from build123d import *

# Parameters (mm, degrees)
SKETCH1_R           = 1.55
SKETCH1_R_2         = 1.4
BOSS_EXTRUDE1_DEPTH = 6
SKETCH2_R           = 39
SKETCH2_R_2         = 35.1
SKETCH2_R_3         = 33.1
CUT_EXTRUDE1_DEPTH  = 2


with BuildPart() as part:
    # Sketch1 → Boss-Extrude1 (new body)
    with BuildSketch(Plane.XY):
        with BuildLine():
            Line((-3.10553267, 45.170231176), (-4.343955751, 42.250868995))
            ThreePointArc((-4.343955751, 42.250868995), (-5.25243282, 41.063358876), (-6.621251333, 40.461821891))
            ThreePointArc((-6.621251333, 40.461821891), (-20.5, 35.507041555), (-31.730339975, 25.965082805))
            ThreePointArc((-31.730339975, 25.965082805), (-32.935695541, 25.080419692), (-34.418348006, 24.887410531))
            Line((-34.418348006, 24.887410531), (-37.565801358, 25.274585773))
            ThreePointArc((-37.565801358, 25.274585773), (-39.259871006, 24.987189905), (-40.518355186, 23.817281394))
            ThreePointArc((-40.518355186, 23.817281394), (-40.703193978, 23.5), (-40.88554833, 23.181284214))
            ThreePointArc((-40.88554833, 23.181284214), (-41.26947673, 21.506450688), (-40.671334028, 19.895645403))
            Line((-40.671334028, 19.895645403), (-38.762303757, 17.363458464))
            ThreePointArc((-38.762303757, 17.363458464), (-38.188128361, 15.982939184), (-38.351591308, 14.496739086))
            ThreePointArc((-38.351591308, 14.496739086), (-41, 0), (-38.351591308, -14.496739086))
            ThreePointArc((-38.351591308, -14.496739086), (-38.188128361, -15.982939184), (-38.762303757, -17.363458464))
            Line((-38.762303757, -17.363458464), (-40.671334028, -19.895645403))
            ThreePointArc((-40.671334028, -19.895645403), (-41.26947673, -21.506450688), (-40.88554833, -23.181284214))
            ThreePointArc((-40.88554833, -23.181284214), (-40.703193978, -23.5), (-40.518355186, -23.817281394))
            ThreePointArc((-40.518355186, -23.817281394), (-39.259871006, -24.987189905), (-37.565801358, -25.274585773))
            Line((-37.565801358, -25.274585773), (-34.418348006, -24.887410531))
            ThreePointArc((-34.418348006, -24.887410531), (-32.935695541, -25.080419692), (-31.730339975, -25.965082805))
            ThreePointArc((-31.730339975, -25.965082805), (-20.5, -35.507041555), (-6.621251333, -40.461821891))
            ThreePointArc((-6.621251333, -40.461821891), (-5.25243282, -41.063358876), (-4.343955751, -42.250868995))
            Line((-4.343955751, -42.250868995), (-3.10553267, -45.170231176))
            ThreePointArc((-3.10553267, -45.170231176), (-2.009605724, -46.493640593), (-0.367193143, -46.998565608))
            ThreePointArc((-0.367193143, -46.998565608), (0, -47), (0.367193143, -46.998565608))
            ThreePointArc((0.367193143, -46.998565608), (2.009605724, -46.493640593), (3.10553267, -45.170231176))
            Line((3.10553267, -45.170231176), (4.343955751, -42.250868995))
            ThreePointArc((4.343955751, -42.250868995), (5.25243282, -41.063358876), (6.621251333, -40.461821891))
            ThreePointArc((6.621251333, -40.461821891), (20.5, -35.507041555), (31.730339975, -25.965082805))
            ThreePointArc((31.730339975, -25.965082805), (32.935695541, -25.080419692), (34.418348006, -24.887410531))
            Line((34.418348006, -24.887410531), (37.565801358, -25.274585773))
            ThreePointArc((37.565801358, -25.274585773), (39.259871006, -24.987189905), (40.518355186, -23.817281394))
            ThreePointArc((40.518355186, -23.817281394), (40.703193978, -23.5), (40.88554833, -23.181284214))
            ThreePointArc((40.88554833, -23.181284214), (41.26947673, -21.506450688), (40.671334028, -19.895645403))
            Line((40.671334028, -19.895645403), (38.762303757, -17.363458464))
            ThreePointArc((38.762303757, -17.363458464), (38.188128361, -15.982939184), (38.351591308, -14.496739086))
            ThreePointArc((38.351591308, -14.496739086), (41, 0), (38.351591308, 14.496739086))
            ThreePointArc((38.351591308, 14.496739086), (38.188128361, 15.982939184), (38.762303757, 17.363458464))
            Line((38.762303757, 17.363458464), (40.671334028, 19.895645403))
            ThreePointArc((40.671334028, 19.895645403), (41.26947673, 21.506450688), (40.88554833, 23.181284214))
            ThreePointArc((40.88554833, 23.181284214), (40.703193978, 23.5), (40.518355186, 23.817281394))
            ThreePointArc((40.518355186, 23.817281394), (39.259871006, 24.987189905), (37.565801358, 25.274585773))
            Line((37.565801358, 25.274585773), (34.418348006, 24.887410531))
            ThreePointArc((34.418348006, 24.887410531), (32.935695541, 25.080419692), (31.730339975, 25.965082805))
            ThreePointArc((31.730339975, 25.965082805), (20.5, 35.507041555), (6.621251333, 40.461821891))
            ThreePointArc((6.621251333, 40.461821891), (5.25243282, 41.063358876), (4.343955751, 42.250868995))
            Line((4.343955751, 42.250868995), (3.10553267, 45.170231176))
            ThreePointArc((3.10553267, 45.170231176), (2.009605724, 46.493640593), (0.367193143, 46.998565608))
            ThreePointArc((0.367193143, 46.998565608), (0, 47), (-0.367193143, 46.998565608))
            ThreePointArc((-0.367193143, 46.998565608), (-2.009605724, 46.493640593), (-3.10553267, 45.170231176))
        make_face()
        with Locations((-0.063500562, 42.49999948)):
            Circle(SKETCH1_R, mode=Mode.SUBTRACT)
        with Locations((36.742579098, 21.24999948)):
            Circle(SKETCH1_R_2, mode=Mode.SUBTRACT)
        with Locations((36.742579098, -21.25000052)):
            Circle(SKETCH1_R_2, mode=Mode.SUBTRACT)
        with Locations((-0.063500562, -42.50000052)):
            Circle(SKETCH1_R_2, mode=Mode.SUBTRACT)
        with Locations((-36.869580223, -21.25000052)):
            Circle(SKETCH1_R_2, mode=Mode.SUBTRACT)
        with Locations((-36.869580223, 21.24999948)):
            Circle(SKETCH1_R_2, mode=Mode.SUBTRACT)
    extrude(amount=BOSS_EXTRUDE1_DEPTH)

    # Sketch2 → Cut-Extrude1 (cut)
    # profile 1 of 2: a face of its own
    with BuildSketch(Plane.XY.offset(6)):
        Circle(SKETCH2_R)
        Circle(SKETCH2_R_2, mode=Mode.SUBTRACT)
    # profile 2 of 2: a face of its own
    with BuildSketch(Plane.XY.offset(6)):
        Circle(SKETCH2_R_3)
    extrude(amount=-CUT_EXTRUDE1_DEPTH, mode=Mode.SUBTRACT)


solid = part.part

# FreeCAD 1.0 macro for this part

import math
import FreeCAD as App
import Part
import Sketcher

doc = App.newDocument("Part")
body = doc.addObject("PartDesign::Body", "Body")

# Sketch on XY plane
sketch1 = doc.addObject("Sketcher::SketchObject", "Sketch")
body.addObject(sketch1)
sketch1.AttachmentSupport = (doc.XY_Plane, [""])
sketch1.MapMode = "FlatFace"
sketch1.addGeometry([
    Part.LineSegment(App.Vector(-3.105533, 45.170231, 0), App.Vector(-4.343956, 42.250869, 0)),  # 0
    Part.ArcOfCircle(Part.Circle(App.Vector(-7.105733, 43.422443, 0), App.Vector(0, 0, 1), 3), math.radians(-80.70638), math.radians(-22.98715)),  # 1
    Part.ArcOfCircle(Part.Circle(App.Vector(0, 0, 0), App.Vector(0, 0, 1), 41), math.radians(99.29362), math.radians(140.70638)),  # 2
    Part.ArcOfCircle(Part.Circle(App.Vector(-34.052072, 27.864967, 0), App.Vector(0, 0, 1), 3), math.radians(-97.01285), math.radians(-39.29362)),  # 3
    Part.LineSegment(App.Vector(-34.418348, 24.887411, 0), App.Vector(-37.565801, 25.274586, 0)),  # 4
    Part.ArcOfCircle(Part.Circle(App.Vector(-37.932077, 22.297029, 0), App.Vector(0, 0, 1), 3), math.radians(82.98715), math.radians(149.552365)),  # 5
    Part.ArcOfCircle(Part.Circle(App.Vector(0.000002, -0.000001, 0), App.Vector(0, 0, 1), 47.000002), math.radians(149.552365), math.radians(150.447635)),  # 6
    Part.ArcOfCircle(Part.Circle(App.Vector(-38.275832, 21.701628, 0), App.Vector(0, 0, 1), 3), math.radians(150.447635), math.radians(217.01285)),  # 7
    Part.LineSegment(App.Vector(-40.671334, 19.895645, 0), App.Vector(-38.762304, 17.363458, 0)),  # 8
    Part.ArcOfCircle(Part.Circle(App.Vector(-41.157805, 15.557476, 0), App.Vector(0, 0, 1), 3), math.radians(-20.70638), math.radians(37.01285)),  # 9
    Part.ArcOfCircle(Part.Circle(App.Vector(0, 0, 0), App.Vector(0, 0, 1), 41), math.radians(159.29362), math.radians(200.70638)),  # 10
    Part.ArcOfCircle(Part.Circle(App.Vector(-41.157805, -15.557476, 0), App.Vector(0, 0, 1), 3), math.radians(-37.01285), math.radians(20.70638)),  # 11
    Part.LineSegment(App.Vector(-38.762304, -17.363458, 0), App.Vector(-40.671334, -19.895645, 0)),  # 12
    Part.ArcOfCircle(Part.Circle(App.Vector(-38.275832, -21.701628, 0), App.Vector(0, 0, 1), 3), math.radians(142.98715), math.radians(209.552365)),  # 13
    Part.ArcOfCircle(Part.Circle(App.Vector(0.000002, 0.000001, 0), App.Vector(0, 0, 1), 47.000002), math.radians(-150.447635), math.radians(-149.552365)),  # 14
    Part.ArcOfCircle(Part.Circle(App.Vector(-37.932077, -22.297029, 0), App.Vector(0, 0, 1), 3), math.radians(-149.552365), math.radians(-82.98715)),  # 15
    Part.LineSegment(App.Vector(-37.565801, -25.274586, 0), App.Vector(-34.418348, -24.887411, 0)),  # 16
    Part.ArcOfCircle(Part.Circle(App.Vector(-34.052072, -27.864967, 0), App.Vector(0, 0, 1), 3), math.radians(39.29362), math.radians(97.01285)),  # 17
    Part.ArcOfCircle(Part.Circle(App.Vector(0, 0, 0), App.Vector(0, 0, 1), 41), math.radians(-140.70638), math.radians(-99.29362)),  # 18
    Part.ArcOfCircle(Part.Circle(App.Vector(-7.105733, -43.422443, 0), App.Vector(0, 0, 1), 3), math.radians(22.98715), math.radians(80.70638)),  # 19
    Part.LineSegment(App.Vector(-4.343956, -42.250869, 0), App.Vector(-3.105533, -45.170231, 0)),  # 20
    Part.ArcOfCircle(Part.Circle(App.Vector(-0.343755, -43.998657, 0), App.Vector(0, 0, 1), 3), math.radians(-157.01285), math.radians(-90.447635)),  # 21
    Part.ArcOfCircle(Part.Circle(App.Vector(0, 0.000005, 0), App.Vector(0, 0, 1), 47.000005), math.radians(-90.447635), math.radians(-89.552365)),  # 22
    Part.ArcOfCircle(Part.Circle(App.Vector(0.343755, -43.998657, 0), App.Vector(0, 0, 1), 3), math.radians(-89.552365), math.radians(-22.98715)),  # 23
    Part.LineSegment(App.Vector(3.105533, -45.170231, 0), App.Vector(4.343956, -42.250869, 0)),  # 24
    Part.ArcOfCircle(Part.Circle(App.Vector(7.105733, -43.422443, 0), App.Vector(0, 0, 1), 3), math.radians(99.29362), math.radians(157.01285)),  # 25
    Part.ArcOfCircle(Part.Circle(App.Vector(0, 0, 0), App.Vector(0, 0, 1), 41), math.radians(-80.70638), math.radians(-39.29362)),  # 26
    Part.ArcOfCircle(Part.Circle(App.Vector(34.052072, -27.864967, 0), App.Vector(0, 0, 1), 3), math.radians(82.98715), math.radians(140.70638)),  # 27
    Part.LineSegment(App.Vector(34.418348, -24.887411, 0), App.Vector(37.565801, -25.274586, 0)),  # 28
    Part.ArcOfCircle(Part.Circle(App.Vector(37.932077, -22.297029, 0), App.Vector(0, 0, 1), 3), math.radians(-97.01285), math.radians(-30.447635)),  # 29
    Part.ArcOfCircle(Part.Circle(App.Vector(-0.000002, 0.000001, 0), App.Vector(0, 0, 1), 47.000002), math.radians(-30.447635), math.radians(-29.552365)),  # 30
    Part.ArcOfCircle(Part.Circle(App.Vector(38.275832, -21.701628, 0), App.Vector(0, 0, 1), 3), math.radians(-29.552365), math.radians(37.01285)),  # 31
    Part.LineSegment(App.Vector(40.671334, -19.895645, 0), App.Vector(38.762304, -17.363458, 0)),  # 32
    Part.ArcOfCircle(Part.Circle(App.Vector(41.157805, -15.557476, 0), App.Vector(0, 0, 1), 3), math.radians(159.29362), math.radians(217.01285)),  # 33
    Part.ArcOfCircle(Part.Circle(App.Vector(0, 0, 0), App.Vector(0, 0, 1), 41), math.radians(-20.70638), math.radians(20.70638)),  # 34
    Part.ArcOfCircle(Part.Circle(App.Vector(41.157805, 15.557476, 0), App.Vector(0, 0, 1), 3), math.radians(142.98715), math.radians(200.70638)),  # 35
    Part.LineSegment(App.Vector(38.762304, 17.363458, 0), App.Vector(40.671334, 19.895645, 0)),  # 36
    Part.ArcOfCircle(Part.Circle(App.Vector(38.275832, 21.701628, 0), App.Vector(0, 0, 1), 3), math.radians(-37.01285), math.radians(29.552365)),  # 37
    Part.ArcOfCircle(Part.Circle(App.Vector(-0.000002, -0.000001, 0), App.Vector(0, 0, 1), 47.000002), math.radians(29.552365), math.radians(30.447635)),  # 38
    Part.ArcOfCircle(Part.Circle(App.Vector(37.932077, 22.297029, 0), App.Vector(0, 0, 1), 3), math.radians(30.447635), math.radians(97.01285)),  # 39
    Part.LineSegment(App.Vector(37.565801, 25.274586, 0), App.Vector(34.418348, 24.887411, 0)),  # 40
    Part.ArcOfCircle(Part.Circle(App.Vector(34.052072, 27.864967, 0), App.Vector(0, 0, 1), 3), math.radians(-140.70638), math.radians(-82.98715)),  # 41
    Part.ArcOfCircle(Part.Circle(App.Vector(0, 0, 0), App.Vector(0, 0, 1), 41), math.radians(39.29362), math.radians(80.70638)),  # 42
    Part.ArcOfCircle(Part.Circle(App.Vector(7.105733, 43.422443, 0), App.Vector(0, 0, 1), 3), math.radians(-157.01285), math.radians(-99.29362)),  # 43
    Part.LineSegment(App.Vector(4.343956, 42.250869, 0), App.Vector(3.105533, 45.170231, 0)),  # 44
    Part.ArcOfCircle(Part.Circle(App.Vector(0.343755, 43.998657, 0), App.Vector(0, 0, 1), 3), math.radians(22.98715), math.radians(89.552365)),  # 45
    Part.ArcOfCircle(Part.Circle(App.Vector(0, -0.000005, 0), App.Vector(0, 0, 1), 47.000005), math.radians(89.552365), math.radians(90.447635)),  # 46
    Part.ArcOfCircle(Part.Circle(App.Vector(-0.343755, 43.998657, 0), App.Vector(0, 0, 1), 3), math.radians(90.447635), math.radians(157.01285)),  # 47
    Part.Circle(App.Vector(-36.86958, -21.250001, 0), App.Vector(0, 0, 1), 1.4),  # 48
    Part.Circle(App.Vector(-0.063501, -42.500001, 0), App.Vector(0, 0, 1), 1.4),  # 49
    Part.Circle(App.Vector(36.742579, -21.250001, 0), App.Vector(0, 0, 1), 1.4),  # 50
    Part.Circle(App.Vector(-36.86958, 21.249999, 0), App.Vector(0, 0, 1), 1.4),  # 51
    Part.Circle(App.Vector(36.742579, 21.249999, 0), App.Vector(0, 0, 1), 1.4),  # 52
    Part.Circle(App.Vector(-0.063501, 42.499999, 0), App.Vector(0, 0, 1), 1.55),  # 53
], False)
sketch1.addConstraint([
    Sketcher.Constraint("Coincident", 0, 2, 1, 2),
    Sketcher.Constraint("Coincident", 1, 1, 2, 1),
    Sketcher.Constraint("Coincident", 2, 2, 3, 2),
    Sketcher.Constraint("Coincident", 3, 1, 4, 1),
    Sketcher.Constraint("Coincident", 4, 2, 5, 1),
    Sketcher.Constraint("Coincident", 5, 2, 6, 1),
    Sketcher.Constraint("Coincident", 6, 2, 7, 1),
    Sketcher.Constraint("Coincident", 7, 2, 8, 1),
    Sketcher.Constraint("Coincident", 8, 2, 9, 2),
    Sketcher.Constraint("Coincident", 9, 1, 10, 1),
    Sketcher.Constraint("Coincident", 10, 2, 11, 2),
    Sketcher.Constraint("Coincident", 11, 1, 12, 1),
    Sketcher.Constraint("Coincident", 12, 2, 13, 1),
    Sketcher.Constraint("Coincident", 13, 2, 14, 1),
    Sketcher.Constraint("Coincident", 14, 2, 15, 1),
    Sketcher.Constraint("Coincident", 15, 2, 16, 1),
    Sketcher.Constraint("Coincident", 16, 2, 17, 2),
    Sketcher.Constraint("Coincident", 17, 1, 18, 1),
    Sketcher.Constraint("Coincident", 18, 2, 19, 2),
    Sketcher.Constraint("Coincident", 19, 1, 20, 1),
    Sketcher.Constraint("Coincident", 20, 2, 21, 1),
    Sketcher.Constraint("Coincident", 21, 2, 22, 1),
    Sketcher.Constraint("Coincident", 22, 2, 23, 1),
    Sketcher.Constraint("Coincident", 23, 2, 24, 1),
    Sketcher.Constraint("Coincident", 24, 2, 25, 2),
    Sketcher.Constraint("Coincident", 25, 1, 26, 1),
    Sketcher.Constraint("Coincident", 26, 2, 27, 2),
    Sketcher.Constraint("Coincident", 27, 1, 28, 1),
    Sketcher.Constraint("Coincident", 28, 2, 29, 1),
    Sketcher.Constraint("Coincident", 29, 2, 30, 1),
    Sketcher.Constraint("Coincident", 30, 2, 31, 1),
    Sketcher.Constraint("Coincident", 31, 2, 32, 1),
    Sketcher.Constraint("Coincident", 32, 2, 33, 2),
    Sketcher.Constraint("Coincident", 33, 1, 34, 1),
    Sketcher.Constraint("Coincident", 34, 2, 35, 2),
    Sketcher.Constraint("Coincident", 35, 1, 36, 1),
    Sketcher.Constraint("Coincident", 36, 2, 37, 1),
    Sketcher.Constraint("Coincident", 37, 2, 38, 1),
    Sketcher.Constraint("Coincident", 38, 2, 39, 1),
    Sketcher.Constraint("Coincident", 39, 2, 40, 1),
    Sketcher.Constraint("Coincident", 40, 2, 41, 2),
    Sketcher.Constraint("Coincident", 41, 1, 42, 1),
    Sketcher.Constraint("Coincident", 42, 2, 43, 2),
    Sketcher.Constraint("Coincident", 43, 1, 44, 1),
    Sketcher.Constraint("Coincident", 44, 2, 45, 1),
    Sketcher.Constraint("Coincident", 45, 2, 46, 1),
    Sketcher.Constraint("Coincident", 46, 2, 47, 1),
    Sketcher.Constraint("Coincident", 47, 2, 0, 1),
    Sketcher.Constraint("Coincident", 2, 3, -1, 1),
    Sketcher.Constraint("Coincident", 6, 3, -1, 1),
    Sketcher.Constraint("Coincident", 10, 3, -1, 1),
    Sketcher.Constraint("Coincident", 14, 3, -1, 1),
    Sketcher.Constraint("Coincident", 18, 3, -1, 1),
    Sketcher.Constraint("Coincident", 22, 3, -1, 1),
    Sketcher.Constraint("Coincident", 26, 3, -1, 1),
    Sketcher.Constraint("Coincident", 30, 3, -1, 1),
    Sketcher.Constraint("Coincident", 34, 3, -1, 1),
    Sketcher.Constraint("Coincident", 38, 3, -1, 1),
    Sketcher.Constraint("Coincident", 42, 3, -1, 1),
    Sketcher.Constraint("Coincident", 46, 3, -1, 1),
    Sketcher.Constraint("Radius", 1, 3.0),
    Sketcher.Constraint("Radius", 2, 41.0),
    Sketcher.Constraint("Radius", 3, 3.0),
    Sketcher.Constraint("Radius", 5, 3.0),
    Sketcher.Constraint("Radius", 7, 3.0),
    Sketcher.Constraint("Radius", 9, 3.0),
    Sketcher.Constraint("Radius", 10, 41.0),
    Sketcher.Constraint("Radius", 11, 3.0),
    Sketcher.Constraint("Radius", 13, 3.0),
    Sketcher.Constraint("Radius", 15, 3.0),
    Sketcher.Constraint("Radius", 17, 3.0),
    Sketcher.Constraint("Radius", 18, 41.0),
    Sketcher.Constraint("Radius", 19, 3.0),
    Sketcher.Constraint("Radius", 21, 3.0),
    Sketcher.Constraint("Radius", 23, 3.0),
    Sketcher.Constraint("Radius", 25, 3.0),
    Sketcher.Constraint("Radius", 26, 41.0),
    Sketcher.Constraint("Radius", 27, 3.0),
    Sketcher.Constraint("Radius", 29, 3.0),
    Sketcher.Constraint("Radius", 31, 3.0),
    Sketcher.Constraint("Radius", 33, 3.0),
    Sketcher.Constraint("Radius", 34, 41.0),
    Sketcher.Constraint("Radius", 35, 3.0),
    Sketcher.Constraint("Radius", 37, 3.0),
    Sketcher.Constraint("Radius", 39, 3.0),
    Sketcher.Constraint("Radius", 41, 3.0),
    Sketcher.Constraint("Radius", 42, 41.0),
    Sketcher.Constraint("Radius", 43, 3.0),
    Sketcher.Constraint("Radius", 45, 3.0),
    Sketcher.Constraint("Radius", 47, 3.0),
    Sketcher.Constraint("Diameter", 48, 2.8),
    Sketcher.Constraint("Diameter", 49, 2.8),
    Sketcher.Constraint("Diameter", 50, 2.8),
    Sketcher.Constraint("Diameter", 51, 2.8),
    Sketcher.Constraint("Diameter", 52, 2.8),
    Sketcher.Constraint("Diameter", 53, 3.1),
    Sketcher.Constraint("DistanceY", 49, 3, -1, 1, 42.500001),
    Sketcher.Constraint("DistanceY", -1, 1, 53, 3, 42.499999),
    Sketcher.Constraint("DistanceY", 48, 3, -1, 1, 21.250001),
    Sketcher.Constraint("DistanceY", 50, 3, -1, 1, 21.250001),
    Sketcher.Constraint("DistanceY", -1, 1, 51, 3, 21.249999),
    Sketcher.Constraint("DistanceY", -1, 1, 52, 3, 21.249999),
    Sketcher.Constraint("Radius", 6, 47.000002),
    Sketcher.Constraint("Radius", 14, 47.000002),
    Sketcher.Constraint("Radius", 22, 47.000005),
    Sketcher.Constraint("Radius", 30, 47.000002),
    Sketcher.Constraint("Radius", 38, 47.000002),
    Sketcher.Constraint("Radius", 46, 47.000005),
    Sketcher.Constraint("DistanceX", 49, 3, -1, 1, 0.063501),
    Sketcher.Constraint("DistanceX", 53, 3, -1, 1, 0.063501),
    Sketcher.Constraint("DistanceX", 4, 2, -1, 1, 37.565801),
    Sketcher.Constraint("DistanceX", 15, 2, -1, 1, 37.565801),
    Sketcher.Constraint("DistanceX", -1, 1, 28, 2, 37.565801),
    Sketcher.Constraint("DistanceX", -1, 1, 39, 2, 37.565801),
    Sketcher.Constraint("DistanceY", -1, 1, 5, 3, 22.297029),
    Sketcher.Constraint("DistanceY", 15, 3, -1, 1, 22.297029),
    Sketcher.Constraint("DistanceY", 29, 3, -1, 1, 22.297029),
    Sketcher.Constraint("DistanceY", -1, 1, 39, 3, 22.297029),
    Sketcher.Constraint("DistanceX", 48, 3, -1, 1, 36.86958),
    Sketcher.Constraint("DistanceX", -1, 1, 50, 3, 36.742579),
    Sketcher.Constraint("DistanceX", 51, 3, -1, 1, 36.86958),
    Sketcher.Constraint("DistanceX", -1, 1, 52, 3, 36.742579),
    Sketcher.Constraint("DistanceY", -1, 1, 0, 2, 42.250869),
    Sketcher.Constraint("DistanceX", 1, 1, -1, 1, 6.621251),
    Sketcher.Constraint("DistanceX", 2, 2, -1, 1, 31.73034),
    Sketcher.Constraint("DistanceX", 3, 1, -1, 1, 34.418348),
    Sketcher.Constraint("DistanceY", -1, 1, 3, 1, 24.887411),
    Sketcher.Constraint("DistanceY", -1, 1, 5, 2, 23.817281),
    Sketcher.Constraint("DistanceX", 6, 2, -1, 1, 40.885548),
    Sketcher.Constraint("DistanceY", -1, 1, 8, 2, 17.363458),
    Sketcher.Constraint("DistanceX", 9, 1, -1, 1, 38.351591),
    Sketcher.Constraint("DistanceX", 10, 2, -1, 1, 38.351591),
    Sketcher.Constraint("DistanceY", 11, 1, -1, 1, 17.363458),
    Sketcher.Constraint("DistanceX", 13, 2, -1, 1, 40.885548),
    Sketcher.Constraint("DistanceY", 14, 2, -1, 1, 23.817281),
    Sketcher.Constraint("DistanceX", 16, 2, -1, 1, 34.418348),
    Sketcher.Constraint("DistanceY", 16, 2, -1, 1, 24.887411),
    Sketcher.Constraint("DistanceX", 17, 1, -1, 1, 31.73034),
    Sketcher.Constraint("DistanceX", 18, 2, -1, 1, 6.621251),
    Sketcher.Constraint("DistanceY", 19, 1, -1, 1, 42.250869),
    Sketcher.Constraint("DistanceY", 20, 2, -1, 1, 45.170231),
    Sketcher.Constraint("DistanceY", 23, 2, -1, 1, 45.170231),
    Sketcher.Constraint("DistanceY", 24, 2, -1, 1, 42.250869),
    Sketcher.Constraint("DistanceX", -1, 1, 25, 1, 6.621251),
    Sketcher.Constraint("DistanceX", -1, 1, 26, 2, 31.73034),
    Sketcher.Constraint("DistanceX", -1, 1, 27, 1, 34.418348),
    Sketcher.Constraint("DistanceY", 27, 1, -1, 1, 24.887411),
    Sketcher.Constraint("DistanceY", 29, 2, -1, 1, 23.817281),
    Sketcher.Constraint("DistanceX", -1, 1, 30, 2, 40.885548),
    Sketcher.Constraint("DistanceY", 32, 2, -1, 1, 17.363458),
    Sketcher.Constraint("DistanceX", -1, 1, 33, 1, 38.351591),
    Sketcher.Constraint("DistanceX", -1, 1, 34, 2, 38.351591),
    Sketcher.Constraint("DistanceY", -1, 1, 35, 1, 17.363458),
    Sketcher.Constraint("DistanceX", -1, 1, 37, 2, 40.885548),
    Sketcher.Constraint("DistanceY", -1, 1, 38, 2, 23.817281),
    Sketcher.Constraint("DistanceX", -1, 1, 40, 2, 34.418348),
    Sketcher.Constraint("DistanceY", -1, 1, 40, 2, 24.887411),
    Sketcher.Constraint("DistanceX", -1, 1, 41, 1, 31.73034),
    Sketcher.Constraint("DistanceX", -1, 1, 42, 2, 6.621251),
    Sketcher.Constraint("DistanceY", -1, 1, 43, 1, 42.250869),
    Sketcher.Constraint("DistanceY", -1, 1, 44, 2, 45.170231),
    Sketcher.Constraint("DistanceY", -1, 1, 47, 2, 45.170231),
    Sketcher.Constraint("Distance", 0, 3.171178),
    Sketcher.Constraint("Distance", 8, 3.171178),
    Sketcher.Constraint("Distance", 12, 3.171178),
    Sketcher.Constraint("Distance", 20, 3.171178),
    Sketcher.Constraint("Distance", 24, 3.171178),
    Sketcher.Constraint("Distance", 32, 3.171178),
    Sketcher.Constraint("Distance", 36, 3.171178),
    Sketcher.Constraint("Distance", 44, 3.171178),
    Sketcher.Constraint("DistanceX", 1, 3, -1, 1, 7.105733),
    Sketcher.Constraint("DistanceX", 7, 3, -1, 1, 38.275832),
    Sketcher.Constraint("DistanceX", 9, 3, -1, 1, 41.157805),
    Sketcher.Constraint("DistanceX", 11, 3, -1, 1, 41.157805),
    Sketcher.Constraint("DistanceX", 13, 3, -1, 1, 38.275832),
    Sketcher.Constraint("DistanceX", 19, 3, -1, 1, 7.105733),
    Sketcher.Constraint("DistanceX", -1, 1, 23, 3, 0.343755),
    Sketcher.Constraint("DistanceX", -1, 1, 31, 3, 38.275832),
    Sketcher.Constraint("DistanceX", -1, 1, 33, 3, 41.157805),
    Sketcher.Constraint("DistanceX", -1, 1, 35, 3, 41.157805),
    Sketcher.Constraint("DistanceX", -1, 1, 37, 3, 38.275832),
    Sketcher.Constraint("DistanceX", -1, 1, 43, 3, 7.105733),
    Sketcher.Constraint("DistanceX", 21, 2, -1, 1, 0.367193),
    Sketcher.Constraint("DistanceX", -1, 1, 22, 2, 0.367193),
    Sketcher.Constraint("DistanceX", -1, 1, 45, 2, 0.367193),
    Sketcher.Constraint("DistanceX", 46, 2, -1, 1, 0.367193),
])
pad1 = doc.addObject("PartDesign::Pad", "Pad")
body.addObject(pad1)
pad1.Profile = sketch1
pad1.Length = 6

# Sketch on XY plane
sketch2 = doc.addObject("Sketcher::SketchObject", "Sketch001")
body.addObject(sketch2)
sketch2.AttachmentSupport = (doc.XY_Plane, [""])
sketch2.MapMode = "FlatFace"
sketch2.AttachmentOffset = App.Placement(App.Vector(0, 0, 6), App.Rotation())
sketch2.addGeometry([
    Part.Circle(App.Vector(0, 0, 0), App.Vector(0, 0, 1), 39),
    Part.Circle(App.Vector(0, 0, 0), App.Vector(0, 0, 1), 35),
    Part.Circle(App.Vector(0, 0, 0), App.Vector(0, 0, 1), 33),
], False)
sketch2.addConstraint([
    Sketcher.Constraint("Coincident", 0, 3, -1, 1),
    Sketcher.Constraint("Coincident", 1, 3, -1, 1),
    Sketcher.Constraint("Coincident", 2, 3, -1, 1),
    Sketcher.Constraint("Diameter", 0, 78.0),
    Sketcher.Constraint("Diameter", 1, 70.2),
    Sketcher.Constraint("Diameter", 2, 66.2),
])
pocket1 = doc.addObject("PartDesign::Pocket", "Pocket")
body.addObject(pocket1)
pocket1.Profile = sketch2
pocket1.Length = 2

doc.recompute()
